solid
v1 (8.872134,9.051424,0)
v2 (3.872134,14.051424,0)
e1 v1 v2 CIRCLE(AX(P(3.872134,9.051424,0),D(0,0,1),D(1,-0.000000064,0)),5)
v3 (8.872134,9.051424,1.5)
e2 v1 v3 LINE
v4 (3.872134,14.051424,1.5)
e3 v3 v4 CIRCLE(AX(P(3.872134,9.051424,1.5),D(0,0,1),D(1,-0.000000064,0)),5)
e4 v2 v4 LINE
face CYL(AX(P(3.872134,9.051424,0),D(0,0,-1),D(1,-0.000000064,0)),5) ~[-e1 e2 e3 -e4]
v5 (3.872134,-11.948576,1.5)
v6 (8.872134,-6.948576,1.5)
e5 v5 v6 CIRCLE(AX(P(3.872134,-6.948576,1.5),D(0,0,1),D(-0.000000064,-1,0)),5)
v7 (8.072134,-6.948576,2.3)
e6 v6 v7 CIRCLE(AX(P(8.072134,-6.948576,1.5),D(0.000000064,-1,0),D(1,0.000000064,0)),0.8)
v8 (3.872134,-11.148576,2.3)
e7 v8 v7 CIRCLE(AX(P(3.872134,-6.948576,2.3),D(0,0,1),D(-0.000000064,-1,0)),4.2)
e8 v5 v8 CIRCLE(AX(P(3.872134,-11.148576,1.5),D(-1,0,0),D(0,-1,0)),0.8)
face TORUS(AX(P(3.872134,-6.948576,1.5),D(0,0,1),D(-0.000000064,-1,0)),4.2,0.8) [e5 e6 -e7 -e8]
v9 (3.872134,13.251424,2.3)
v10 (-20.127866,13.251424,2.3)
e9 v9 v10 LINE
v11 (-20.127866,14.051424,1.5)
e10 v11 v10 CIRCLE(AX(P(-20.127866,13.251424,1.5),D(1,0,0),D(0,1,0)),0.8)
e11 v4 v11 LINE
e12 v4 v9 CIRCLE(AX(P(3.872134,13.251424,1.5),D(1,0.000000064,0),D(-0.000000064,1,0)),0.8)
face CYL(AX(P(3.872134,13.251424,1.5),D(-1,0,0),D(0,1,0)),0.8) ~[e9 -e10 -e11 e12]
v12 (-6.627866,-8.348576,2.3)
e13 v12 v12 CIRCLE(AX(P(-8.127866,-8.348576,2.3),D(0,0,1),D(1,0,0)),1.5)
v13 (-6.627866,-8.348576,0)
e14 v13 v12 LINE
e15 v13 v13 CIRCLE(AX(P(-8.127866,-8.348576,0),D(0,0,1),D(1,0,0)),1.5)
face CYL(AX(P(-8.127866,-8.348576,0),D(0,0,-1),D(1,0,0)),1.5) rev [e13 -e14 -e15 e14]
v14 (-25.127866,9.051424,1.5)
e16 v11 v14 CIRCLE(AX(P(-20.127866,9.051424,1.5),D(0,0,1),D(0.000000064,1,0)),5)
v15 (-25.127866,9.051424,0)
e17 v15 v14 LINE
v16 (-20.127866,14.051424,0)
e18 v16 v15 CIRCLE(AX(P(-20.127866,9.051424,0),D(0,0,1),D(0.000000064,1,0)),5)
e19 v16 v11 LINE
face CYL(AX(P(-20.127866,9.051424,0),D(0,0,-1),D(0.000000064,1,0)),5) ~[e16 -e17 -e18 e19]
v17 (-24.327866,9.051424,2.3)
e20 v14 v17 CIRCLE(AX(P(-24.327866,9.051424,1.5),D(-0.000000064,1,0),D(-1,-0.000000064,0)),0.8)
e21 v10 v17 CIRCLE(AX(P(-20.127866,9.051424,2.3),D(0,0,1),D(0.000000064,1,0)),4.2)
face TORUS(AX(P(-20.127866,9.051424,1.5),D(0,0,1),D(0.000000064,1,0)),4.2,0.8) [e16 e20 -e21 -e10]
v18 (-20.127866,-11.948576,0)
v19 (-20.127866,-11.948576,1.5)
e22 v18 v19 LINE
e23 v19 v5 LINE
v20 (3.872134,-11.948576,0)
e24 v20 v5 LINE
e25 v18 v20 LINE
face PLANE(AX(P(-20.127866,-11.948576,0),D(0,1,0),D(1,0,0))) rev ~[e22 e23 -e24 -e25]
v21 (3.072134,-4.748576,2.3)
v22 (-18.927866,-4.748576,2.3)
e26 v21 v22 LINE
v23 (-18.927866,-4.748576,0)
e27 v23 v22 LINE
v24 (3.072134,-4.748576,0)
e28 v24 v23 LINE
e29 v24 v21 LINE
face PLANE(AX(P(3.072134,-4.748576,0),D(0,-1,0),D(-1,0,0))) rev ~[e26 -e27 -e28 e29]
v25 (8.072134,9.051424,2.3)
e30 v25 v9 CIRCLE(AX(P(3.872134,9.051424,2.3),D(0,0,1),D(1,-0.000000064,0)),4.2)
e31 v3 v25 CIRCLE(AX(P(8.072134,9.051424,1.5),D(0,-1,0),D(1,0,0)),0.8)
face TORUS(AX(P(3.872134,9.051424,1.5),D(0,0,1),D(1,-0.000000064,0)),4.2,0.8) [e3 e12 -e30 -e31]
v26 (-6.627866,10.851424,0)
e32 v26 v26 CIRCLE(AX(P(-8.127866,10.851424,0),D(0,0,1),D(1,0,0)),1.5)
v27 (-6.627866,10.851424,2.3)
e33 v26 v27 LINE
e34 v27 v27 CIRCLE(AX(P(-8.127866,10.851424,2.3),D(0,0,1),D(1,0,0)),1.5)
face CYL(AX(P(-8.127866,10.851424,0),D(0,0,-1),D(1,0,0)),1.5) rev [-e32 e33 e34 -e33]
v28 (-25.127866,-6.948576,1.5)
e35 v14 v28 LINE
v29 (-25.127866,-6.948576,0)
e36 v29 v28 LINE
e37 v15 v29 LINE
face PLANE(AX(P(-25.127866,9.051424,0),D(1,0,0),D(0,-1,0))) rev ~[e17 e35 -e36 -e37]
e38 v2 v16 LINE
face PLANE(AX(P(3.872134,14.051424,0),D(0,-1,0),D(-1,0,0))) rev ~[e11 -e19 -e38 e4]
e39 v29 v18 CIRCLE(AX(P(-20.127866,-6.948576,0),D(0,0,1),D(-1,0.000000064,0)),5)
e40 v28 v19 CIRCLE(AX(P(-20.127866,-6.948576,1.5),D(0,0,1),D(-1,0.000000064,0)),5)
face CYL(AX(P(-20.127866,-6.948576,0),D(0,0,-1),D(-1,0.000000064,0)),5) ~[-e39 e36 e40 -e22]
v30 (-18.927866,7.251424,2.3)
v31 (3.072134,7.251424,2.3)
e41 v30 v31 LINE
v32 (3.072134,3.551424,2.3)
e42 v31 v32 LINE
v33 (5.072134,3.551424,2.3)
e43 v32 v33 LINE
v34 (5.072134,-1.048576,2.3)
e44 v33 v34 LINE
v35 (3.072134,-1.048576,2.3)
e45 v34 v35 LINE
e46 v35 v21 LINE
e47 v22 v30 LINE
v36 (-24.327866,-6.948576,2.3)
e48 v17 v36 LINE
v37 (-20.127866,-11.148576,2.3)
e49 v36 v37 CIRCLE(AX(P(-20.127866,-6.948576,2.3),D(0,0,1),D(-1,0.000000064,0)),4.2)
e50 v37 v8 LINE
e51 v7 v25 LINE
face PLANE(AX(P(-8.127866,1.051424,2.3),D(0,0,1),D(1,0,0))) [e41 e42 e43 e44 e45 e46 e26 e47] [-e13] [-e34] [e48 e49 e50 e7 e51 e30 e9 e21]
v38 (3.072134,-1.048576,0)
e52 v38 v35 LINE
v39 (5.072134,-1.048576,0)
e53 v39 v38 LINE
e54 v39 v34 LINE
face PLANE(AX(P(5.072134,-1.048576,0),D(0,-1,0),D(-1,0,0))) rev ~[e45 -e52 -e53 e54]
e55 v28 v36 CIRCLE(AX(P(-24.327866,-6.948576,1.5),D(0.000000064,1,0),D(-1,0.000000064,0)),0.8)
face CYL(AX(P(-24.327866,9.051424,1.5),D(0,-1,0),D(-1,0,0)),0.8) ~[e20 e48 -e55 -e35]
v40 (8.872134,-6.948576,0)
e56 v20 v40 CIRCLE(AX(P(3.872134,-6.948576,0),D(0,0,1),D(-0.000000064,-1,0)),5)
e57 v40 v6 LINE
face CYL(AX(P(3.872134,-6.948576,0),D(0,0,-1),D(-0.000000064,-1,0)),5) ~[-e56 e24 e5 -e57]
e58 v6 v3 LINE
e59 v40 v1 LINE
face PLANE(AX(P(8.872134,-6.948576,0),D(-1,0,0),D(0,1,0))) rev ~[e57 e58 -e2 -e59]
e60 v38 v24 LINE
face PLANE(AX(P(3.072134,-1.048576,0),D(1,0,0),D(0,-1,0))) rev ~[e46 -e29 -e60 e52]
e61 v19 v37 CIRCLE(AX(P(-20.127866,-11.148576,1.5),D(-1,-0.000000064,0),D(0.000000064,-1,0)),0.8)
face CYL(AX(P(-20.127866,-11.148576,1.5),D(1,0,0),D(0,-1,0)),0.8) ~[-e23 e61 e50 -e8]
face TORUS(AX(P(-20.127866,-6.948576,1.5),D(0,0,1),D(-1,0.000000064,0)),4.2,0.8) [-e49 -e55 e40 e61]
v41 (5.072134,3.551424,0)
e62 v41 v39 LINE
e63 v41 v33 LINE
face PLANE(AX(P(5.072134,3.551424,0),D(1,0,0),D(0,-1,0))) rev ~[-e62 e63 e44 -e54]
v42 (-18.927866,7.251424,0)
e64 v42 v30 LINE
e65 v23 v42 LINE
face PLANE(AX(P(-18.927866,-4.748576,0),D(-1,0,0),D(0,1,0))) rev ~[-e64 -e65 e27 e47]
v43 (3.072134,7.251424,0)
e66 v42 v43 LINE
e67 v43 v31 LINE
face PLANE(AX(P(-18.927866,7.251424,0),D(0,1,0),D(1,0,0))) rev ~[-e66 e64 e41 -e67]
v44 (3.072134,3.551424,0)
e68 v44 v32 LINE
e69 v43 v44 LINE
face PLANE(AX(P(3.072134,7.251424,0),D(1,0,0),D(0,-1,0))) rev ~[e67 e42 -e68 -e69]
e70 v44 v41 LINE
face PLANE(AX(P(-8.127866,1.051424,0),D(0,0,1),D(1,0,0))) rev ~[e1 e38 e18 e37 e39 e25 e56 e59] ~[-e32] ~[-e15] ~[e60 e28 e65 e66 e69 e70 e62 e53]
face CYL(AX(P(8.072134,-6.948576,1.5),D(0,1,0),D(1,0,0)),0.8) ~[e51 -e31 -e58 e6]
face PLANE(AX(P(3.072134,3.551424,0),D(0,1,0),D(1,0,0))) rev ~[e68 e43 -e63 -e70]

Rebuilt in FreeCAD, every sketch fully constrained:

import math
import FreeCAD as App
import Part
import Sketcher

V = App.Vector


def edges_at(feature, points):
    """Names of the edges that pass closest to the given points."""
    edges = feature.Shape.Edges
    near = lambda p: min(range(len(edges)), key=lambda i: edges[i].distToShape(Part.Vertex(*p))[0])
    return sorted({f"Edge{near(p) + 1}" for p in points})


def add_polygon(sketch, points):
    """Adds a closed chain of lines whose ends are joined by coincident constraints."""
    first, n = sketch.GeometryCount, len(points)
    for a, b in zip(points, points[1:] + points[:1]):
        sketch.addGeometry(Part.LineSegment(App.Vector(*a, 0), App.Vector(*b, 0)), False)
    for i in range(n):
        sketch.addConstraint(Sketcher.Constraint("Coincident", first + i, 2, first + (i + 1) % n, 1))

doc = App.newDocument("Part")
body = doc.addObject("PartDesign::Body", "Body")

# Sketch on XY plane
sketch1 = body.newObject("Sketcher::SketchObject", "Sketch")
sketch1.AttachmentSupport = (doc.getObject("XY_Plane"), [""])
sketch1.MapMode = "FlatFace"
sketch1.addGeometry(Part.LineSegment(V(3.9, 14.1, 0), V(-20.1, 14.1, 0)), False)  # 0
sketch1.addGeometry(Part.ArcOfCircle(Part.Circle(V(-20.1, 9.1, 0), V(0, 0, 1), 5), math.radians(90), math.radians(180)), False)  # 1
sketch1.addGeometry(Part.LineSegment(V(-25.1, 9.1, 0), V(-25.1, -6.9, 0)), False)  # 2
sketch1.addGeometry(Part.ArcOfCircle(Part.Circle(V(-20.1, -6.9, 0), V(0, 0, 1), 5), math.radians(180), math.radians(270)), False)  # 3
sketch1.addGeometry(Part.LineSegment(V(-20.1, -11.9, 0), V(3.9, -11.9, 0)), False)  # 4
sketch1.addGeometry(Part.ArcOfCircle(Part.Circle(V(3.9, -6.9, 0), V(0, 0, 1), 5), math.radians(-90), math.radians(0)), False)  # 5
sketch1.addGeometry(Part.LineSegment(V(8.9, -6.9, 0), V(8.9, 9.1, 0)), False)  # 6
sketch1.addGeometry(Part.ArcOfCircle(Part.Circle(V(3.9, 9.1, 0), V(0, 0, 1), 5), math.radians(0), math.radians(90)), False)  # 7
sketch1.addGeometry(Part.Circle(V(-8.1, -8.3, 0), V(0, 0, 1), 1.5), False)  # 8
sketch1.addGeometry(Part.Circle(V(-8.1, 10.9, 0), V(0, 0, 1), 1.5), False)  # 9
add_polygon(sketch1, [(3.1, -1), (3.1, -4.7), (-18.9, -4.7), (-18.9, 7.3), (3.1, 7.3), (3.1, 3.6), (5.1, 3.6), (5.1, -1)])  # lines 10-17
sketch1.addConstraint([
    Sketcher.Constraint("Tangent", 0, 2, 1, 1),
    Sketcher.Constraint("Tangent", 1, 2, 2, 1),
    Sketcher.Constraint("Tangent", 2, 2, 3, 1),
    Sketcher.Constraint("Tangent", 3, 2, 4, 1),
    Sketcher.Constraint("Tangent", 4, 2, 5, 1),
    Sketcher.Constraint("Tangent", 5, 2, 6, 1),
    Sketcher.Constraint("Tangent", 6, 2, 7, 1),
    Sketcher.Constraint("Tangent", 7, 2, 0, 1),
    Sketcher.Constraint("Horizontal", 0),
    Sketcher.Constraint("Vertical", 2),
    Sketcher.Constraint("Horizontal", 4),
    Sketcher.Constraint("Vertical", 6),
    Sketcher.Constraint("Vertical", 10),
    Sketcher.Constraint("Horizontal", 11),
    Sketcher.Constraint("Vertical", 12),
    Sketcher.Constraint("Horizontal", 13),
    Sketcher.Constraint("Vertical", 14),
    Sketcher.Constraint("Horizontal", 15),
    Sketcher.Constraint("Vertical", 16),
    Sketcher.Constraint("Horizontal", 17),
    Sketcher.Constraint("Equal", 1, 3),
    Sketcher.Constraint("Equal", 3, 5),
    Sketcher.Constraint("Equal", 5, 7),
    Sketcher.Constraint("Equal", 8, 9),
    Sketcher.Constraint("Vertical", 8, 3, 9, 3),
    Sketcher.Constraint("Vertical", 10, 2, 13, 2),
    Sketcher.Constraint("Equal", 10, 14),
    Sketcher.Constraint("Diameter", 8, 3.0),
    Sketcher.Constraint("Radius", 1, 5.0),
    Sketcher.Constraint("DistanceX", 0, 2, 0, 1, 24.0),
    Sketcher.Constraint("DistanceX", 11, 2, 11, 1, 22.0),
    Sketcher.Constraint("DistanceX", 15, 1, 15, 2, 2.0),
    Sketcher.Constraint("DistanceY", 2, 2, 2, 1, 16.0),
    Sketcher.Constraint("DistanceY", 12, 1, 12, 2, 12.0),
    Sketcher.Constraint("DistanceY", 10, 2, 10, 1, 3.7),
    Sketcher.Constraint("DistanceX", 8, 3, 5, 3, 12.0),
    Sketcher.Constraint("DistanceY", 8, 3, 5, 3, 1.4),
    Sketcher.Constraint("DistanceY", 7, 3, 9, 3, 1.8),
    Sketcher.Constraint("DistanceX", 10, 2, 5, 3, 0.8),
    Sketcher.Constraint("DistanceY", 5, 3, 10, 2, 2.2),
    Sketcher.Constraint("DistanceX", 1, 3, -1, 1, 20.127866),
    Sketcher.Constraint("DistanceY", -1, 1, 1, 3, 9.051424),
])
pad1 = body.newObject("PartDesign::Pad", "Pad")
pad1.Profile = sketch1
pad1.Length = 2.3
doc.recompute()

fillet = body.newObject("PartDesign::Fillet", "Fillet")
fillet.Base = (pad1, edges_at(pad1, [(-23.663, -10.484, 2.3)]))
fillet.Radius = 0.8

doc.recompute()
